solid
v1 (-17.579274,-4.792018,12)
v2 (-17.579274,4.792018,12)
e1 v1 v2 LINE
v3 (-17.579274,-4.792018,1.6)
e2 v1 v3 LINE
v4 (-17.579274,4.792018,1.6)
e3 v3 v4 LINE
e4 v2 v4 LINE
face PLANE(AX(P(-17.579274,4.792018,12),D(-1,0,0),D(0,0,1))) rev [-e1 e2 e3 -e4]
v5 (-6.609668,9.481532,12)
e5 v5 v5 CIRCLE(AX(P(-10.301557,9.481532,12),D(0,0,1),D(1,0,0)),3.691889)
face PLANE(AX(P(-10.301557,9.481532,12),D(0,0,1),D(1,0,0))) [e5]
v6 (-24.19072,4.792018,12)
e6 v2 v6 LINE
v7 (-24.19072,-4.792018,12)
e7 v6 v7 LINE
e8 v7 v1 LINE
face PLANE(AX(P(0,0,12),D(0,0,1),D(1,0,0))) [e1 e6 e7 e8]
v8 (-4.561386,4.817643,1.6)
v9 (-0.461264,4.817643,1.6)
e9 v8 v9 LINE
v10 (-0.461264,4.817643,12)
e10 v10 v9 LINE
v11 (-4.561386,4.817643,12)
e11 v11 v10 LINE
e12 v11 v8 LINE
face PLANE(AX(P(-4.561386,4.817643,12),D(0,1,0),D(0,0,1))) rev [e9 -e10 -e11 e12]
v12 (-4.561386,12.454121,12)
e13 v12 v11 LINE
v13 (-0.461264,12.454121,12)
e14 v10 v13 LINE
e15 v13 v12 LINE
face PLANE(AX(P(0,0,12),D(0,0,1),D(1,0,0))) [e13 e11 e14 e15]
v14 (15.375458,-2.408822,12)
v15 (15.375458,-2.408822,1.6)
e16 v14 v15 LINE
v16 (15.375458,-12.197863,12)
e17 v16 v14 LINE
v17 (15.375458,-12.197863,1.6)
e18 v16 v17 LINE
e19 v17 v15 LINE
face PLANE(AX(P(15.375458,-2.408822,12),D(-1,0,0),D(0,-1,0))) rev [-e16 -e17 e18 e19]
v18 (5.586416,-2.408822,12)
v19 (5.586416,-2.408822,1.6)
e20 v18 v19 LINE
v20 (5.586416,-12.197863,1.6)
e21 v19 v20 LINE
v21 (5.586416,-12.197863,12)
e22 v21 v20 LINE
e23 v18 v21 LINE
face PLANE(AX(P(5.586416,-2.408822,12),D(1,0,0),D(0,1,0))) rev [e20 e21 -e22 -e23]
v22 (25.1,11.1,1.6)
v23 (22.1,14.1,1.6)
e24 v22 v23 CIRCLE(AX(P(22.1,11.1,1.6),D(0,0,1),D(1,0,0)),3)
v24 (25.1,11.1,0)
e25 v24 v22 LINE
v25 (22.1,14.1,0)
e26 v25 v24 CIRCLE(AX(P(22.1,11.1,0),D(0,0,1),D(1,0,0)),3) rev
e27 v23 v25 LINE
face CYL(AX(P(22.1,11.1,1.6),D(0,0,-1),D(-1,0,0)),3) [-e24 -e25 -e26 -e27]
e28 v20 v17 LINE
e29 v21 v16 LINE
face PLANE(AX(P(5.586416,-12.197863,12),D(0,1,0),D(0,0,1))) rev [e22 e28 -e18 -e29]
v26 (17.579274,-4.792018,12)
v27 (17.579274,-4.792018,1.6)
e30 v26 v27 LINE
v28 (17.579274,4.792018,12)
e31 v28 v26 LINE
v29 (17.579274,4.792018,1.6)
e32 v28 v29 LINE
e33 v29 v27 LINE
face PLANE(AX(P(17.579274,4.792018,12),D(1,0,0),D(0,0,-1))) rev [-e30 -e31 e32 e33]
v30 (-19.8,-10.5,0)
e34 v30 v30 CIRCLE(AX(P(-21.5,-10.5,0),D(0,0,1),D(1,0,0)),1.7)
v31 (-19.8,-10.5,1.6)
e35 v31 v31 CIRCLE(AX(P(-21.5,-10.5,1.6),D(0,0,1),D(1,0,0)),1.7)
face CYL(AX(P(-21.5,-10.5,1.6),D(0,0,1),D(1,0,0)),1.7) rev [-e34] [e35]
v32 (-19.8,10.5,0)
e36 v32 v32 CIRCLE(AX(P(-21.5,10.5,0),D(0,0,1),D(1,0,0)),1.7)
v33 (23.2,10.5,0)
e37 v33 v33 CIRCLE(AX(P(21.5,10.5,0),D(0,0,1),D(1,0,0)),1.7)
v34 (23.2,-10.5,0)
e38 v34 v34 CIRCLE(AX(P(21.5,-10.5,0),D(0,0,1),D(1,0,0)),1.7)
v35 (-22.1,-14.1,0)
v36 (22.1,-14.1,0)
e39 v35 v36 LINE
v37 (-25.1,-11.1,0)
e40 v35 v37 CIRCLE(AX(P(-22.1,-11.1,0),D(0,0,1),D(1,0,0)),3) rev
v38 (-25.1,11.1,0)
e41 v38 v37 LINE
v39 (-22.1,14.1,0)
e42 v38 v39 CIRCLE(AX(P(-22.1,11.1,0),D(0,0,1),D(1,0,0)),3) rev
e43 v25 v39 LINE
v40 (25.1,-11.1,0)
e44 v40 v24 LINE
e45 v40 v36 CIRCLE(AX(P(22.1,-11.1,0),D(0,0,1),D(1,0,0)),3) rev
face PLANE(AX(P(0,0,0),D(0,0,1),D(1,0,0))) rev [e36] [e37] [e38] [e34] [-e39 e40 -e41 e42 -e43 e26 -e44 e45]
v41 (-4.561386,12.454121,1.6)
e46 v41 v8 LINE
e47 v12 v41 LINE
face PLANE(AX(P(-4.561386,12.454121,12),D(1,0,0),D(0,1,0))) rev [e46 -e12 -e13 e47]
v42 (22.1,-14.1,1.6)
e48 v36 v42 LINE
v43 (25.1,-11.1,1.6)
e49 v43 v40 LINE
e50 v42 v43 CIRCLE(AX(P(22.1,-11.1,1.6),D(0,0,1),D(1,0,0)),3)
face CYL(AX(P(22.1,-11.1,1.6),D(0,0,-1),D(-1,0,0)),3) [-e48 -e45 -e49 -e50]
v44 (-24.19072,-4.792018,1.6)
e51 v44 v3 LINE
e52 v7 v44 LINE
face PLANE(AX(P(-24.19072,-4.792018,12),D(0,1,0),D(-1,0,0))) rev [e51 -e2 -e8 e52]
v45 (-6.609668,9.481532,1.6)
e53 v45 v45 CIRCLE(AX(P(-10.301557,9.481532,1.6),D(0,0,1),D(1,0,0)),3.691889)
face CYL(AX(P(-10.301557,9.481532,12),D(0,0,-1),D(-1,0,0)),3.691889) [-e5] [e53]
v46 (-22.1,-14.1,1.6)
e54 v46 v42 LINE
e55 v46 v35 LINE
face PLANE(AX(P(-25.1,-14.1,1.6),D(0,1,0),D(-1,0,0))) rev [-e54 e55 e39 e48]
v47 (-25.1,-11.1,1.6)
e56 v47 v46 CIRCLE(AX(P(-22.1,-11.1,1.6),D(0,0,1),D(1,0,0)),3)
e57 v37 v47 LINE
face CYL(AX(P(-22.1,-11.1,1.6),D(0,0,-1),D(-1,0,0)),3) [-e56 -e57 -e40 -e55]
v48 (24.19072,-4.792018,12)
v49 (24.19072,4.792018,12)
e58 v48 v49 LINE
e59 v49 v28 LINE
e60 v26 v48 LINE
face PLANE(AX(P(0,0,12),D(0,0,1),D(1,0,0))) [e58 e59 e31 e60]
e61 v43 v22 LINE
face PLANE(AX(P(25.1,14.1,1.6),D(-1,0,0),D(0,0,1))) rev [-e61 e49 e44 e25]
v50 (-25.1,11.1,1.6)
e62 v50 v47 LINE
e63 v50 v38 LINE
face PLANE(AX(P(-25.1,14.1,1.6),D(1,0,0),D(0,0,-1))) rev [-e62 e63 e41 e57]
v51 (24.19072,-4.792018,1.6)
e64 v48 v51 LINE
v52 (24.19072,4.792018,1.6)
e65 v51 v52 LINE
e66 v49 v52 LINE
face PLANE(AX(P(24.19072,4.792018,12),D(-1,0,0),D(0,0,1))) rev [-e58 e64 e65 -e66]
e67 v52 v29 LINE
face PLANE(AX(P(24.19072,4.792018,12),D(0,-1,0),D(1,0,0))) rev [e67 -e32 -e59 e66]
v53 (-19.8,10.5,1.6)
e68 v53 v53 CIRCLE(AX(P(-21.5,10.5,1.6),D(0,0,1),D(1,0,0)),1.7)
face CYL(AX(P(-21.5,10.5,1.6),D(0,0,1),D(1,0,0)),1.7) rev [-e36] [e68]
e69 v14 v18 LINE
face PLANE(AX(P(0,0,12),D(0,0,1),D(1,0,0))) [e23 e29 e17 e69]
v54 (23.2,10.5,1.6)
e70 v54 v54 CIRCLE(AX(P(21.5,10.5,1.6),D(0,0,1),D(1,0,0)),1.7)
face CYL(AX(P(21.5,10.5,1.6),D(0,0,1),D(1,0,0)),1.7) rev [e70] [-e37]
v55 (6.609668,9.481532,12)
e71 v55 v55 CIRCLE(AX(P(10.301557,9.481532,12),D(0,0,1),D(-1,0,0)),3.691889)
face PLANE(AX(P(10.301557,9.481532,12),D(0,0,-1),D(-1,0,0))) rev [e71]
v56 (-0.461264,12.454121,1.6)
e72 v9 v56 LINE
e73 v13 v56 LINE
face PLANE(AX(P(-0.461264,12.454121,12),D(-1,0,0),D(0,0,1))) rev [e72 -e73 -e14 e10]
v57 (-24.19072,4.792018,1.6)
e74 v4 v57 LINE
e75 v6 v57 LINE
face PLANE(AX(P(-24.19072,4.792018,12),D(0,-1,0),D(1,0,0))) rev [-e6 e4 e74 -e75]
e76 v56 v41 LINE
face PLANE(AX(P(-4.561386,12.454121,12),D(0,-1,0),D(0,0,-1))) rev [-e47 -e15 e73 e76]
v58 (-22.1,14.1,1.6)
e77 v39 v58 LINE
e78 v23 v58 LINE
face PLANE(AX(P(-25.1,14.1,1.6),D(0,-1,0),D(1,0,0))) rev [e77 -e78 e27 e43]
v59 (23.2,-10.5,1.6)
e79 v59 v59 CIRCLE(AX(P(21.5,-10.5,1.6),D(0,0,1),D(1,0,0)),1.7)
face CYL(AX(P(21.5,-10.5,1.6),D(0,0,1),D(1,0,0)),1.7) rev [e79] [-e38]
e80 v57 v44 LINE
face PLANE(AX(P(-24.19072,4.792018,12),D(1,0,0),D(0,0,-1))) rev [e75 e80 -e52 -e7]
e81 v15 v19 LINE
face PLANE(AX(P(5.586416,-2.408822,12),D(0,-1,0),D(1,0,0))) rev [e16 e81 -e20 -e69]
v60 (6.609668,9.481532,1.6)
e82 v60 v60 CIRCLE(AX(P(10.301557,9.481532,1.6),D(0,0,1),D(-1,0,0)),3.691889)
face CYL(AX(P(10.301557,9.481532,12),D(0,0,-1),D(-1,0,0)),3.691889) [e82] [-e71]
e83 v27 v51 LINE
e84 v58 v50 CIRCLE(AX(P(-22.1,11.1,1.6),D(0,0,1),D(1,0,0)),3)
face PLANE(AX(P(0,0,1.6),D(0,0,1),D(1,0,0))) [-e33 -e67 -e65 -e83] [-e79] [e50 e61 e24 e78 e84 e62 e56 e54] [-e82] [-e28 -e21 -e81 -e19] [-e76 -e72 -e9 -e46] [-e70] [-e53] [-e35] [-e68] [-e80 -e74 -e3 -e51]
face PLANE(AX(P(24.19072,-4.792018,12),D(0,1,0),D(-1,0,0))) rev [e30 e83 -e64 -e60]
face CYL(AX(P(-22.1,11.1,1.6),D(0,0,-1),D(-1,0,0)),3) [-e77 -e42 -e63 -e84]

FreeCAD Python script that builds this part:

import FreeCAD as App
import Part
import Sketcher


def edges_at(feature, points):
    """Names of the edges that pass closest to the given points."""
    edges = feature.Shape.Edges
    near = lambda p: min(range(len(edges)), key=lambda i: edges[i].distToShape(Part.Vertex(*p))[0])
    return sorted({f"Edge{near(p) + 1}" for p in points})


def add_polygon(sketch, points):
    """Adds a closed chain of lines whose ends are joined by coincident constraints."""
    first, n = sketch.GeometryCount, len(points)
    for a, b in zip(points, points[1:] + points[:1]):
        sketch.addGeometry(Part.LineSegment(App.Vector(*a, 0), App.Vector(*b, 0)), False)
    for i in range(n):
        sketch.addConstraint(Sketcher.Constraint("Coincident", first + i, 2, first + (i + 1) % n, 1))

doc = App.newDocument("Part")
body = doc.addObject("PartDesign::Body", "Body")

sketch1 = body.newObject("Sketcher::SketchObject", "Sketch")
sketch1.AttachmentSupport = (doc.getObject("XY_Plane"), [""])
sketch1.MapMode = "FlatFace"
add_polygon(sketch1, [(-25, 14), (-25, -14), (25, -14), (25, 14)])
sketch1.addConstraint([
    Sketcher.Constraint("Vertical", 0),
    Sketcher.Constraint("Horizontal", 1),
    Sketcher.Constraint("Vertical", 2),
    Sketcher.Constraint("Horizontal", 3),
    Sketcher.Constraint("Symmetric", 0, 2, 2, 2, -1, 1),
    Sketcher.Constraint("DistanceX", 1, 1, 1, 2, 50.2),
    Sketcher.Constraint("DistanceY", 0, 2, 0, 1, 28.2),
])
pad1 = body.newObject("PartDesign::Pad", "Pad")
pad1.Profile = sketch1
pad1.Length = 1.6

sketch2 = body.newObject("Sketcher::SketchObject", "Sketch001")
sketch2.AttachmentSupport = (doc.getObject("XY_Plane"), [""])
sketch2.MapMode = "FlatFace"
sketch2.AttachmentOffset = App.Placement(App.Vector(0, 0, 1.6), App.Rotation())
sketch2.addGeometry([
    Part.Circle(App.Vector(-21.5, 10.5, 0), App.Vector(0, 0, 1), 1.7),
    Part.Circle(App.Vector(21.5, 10.5, 0), App.Vector(0, 0, 1), 1.7),
    Part.Circle(App.Vector(21.5, -10.5, 0), App.Vector(0, 0, 1), 1.7),
    Part.Circle(App.Vector(-21.5, -10.5, 0), App.Vector(0, 0, 1), 1.7),
], False)
sketch2.addConstraint([
    Sketcher.Constraint("Equal", 0, 1),
    Sketcher.Constraint("Equal", 1, 2),
    Sketcher.Constraint("Equal", 2, 3),
    Sketcher.Constraint("Symmetric", 0, 3, 2, 3, -1, 1),
    Sketcher.Constraint("Symmetric", 1, 3, 3, 3, -1, 1),
    Sketcher.Constraint("Symmetric", 0, 3, 1, 3, -2),
    Sketcher.Constraint("Diameter", 0, 3.4),
    Sketcher.Constraint("DistanceX", 0, 3, 1, 3, 43.0),
    Sketcher.Constraint("DistanceY", 2, 3, 1, 3, 21.0),
])
doc.recompute()
hole = body.newObject("PartDesign::Hole", "Hole")
hole.Profile = sketch2
hole.ThreadType = "None"
hole.Diameter = 3.4
hole.DepthType = "ThroughAll"
doc.recompute()

fillet = body.newObject("PartDesign::Fillet", "Fillet")
fillet.Base = (hole, edges_at(hole, [
    (-25.1, 14.1, 0.8),
    (25.1, 14.1, 0.8),
    (25.1, -14.1, 0.8),
    (-25.1, -14.1, 0.8),
]))
fillet.Radius = 3

sketch3 = body.newObject("Sketcher::SketchObject", "Sketch002")
sketch3.AttachmentSupport = (doc.getObject("XY_Plane"), [""])
sketch3.MapMode = "FlatFace"
sketch3.AttachmentOffset = App.Placement(App.Vector(0, 0, 1.6), App.Rotation())
sketch3.addGeometry(Part.Circle(App.Vector(-10.3, 9.5, 0), App.Vector(0, 0, 1), 3.7), False)
sketch3.addGeometry(Part.Circle(App.Vector(10.3, 9.5, 0), App.Vector(0, 0, 1), 3.7), False)
add_polygon(sketch3, [(-24.2, 4.8), (-24.2, -4.8), (-17.6, -4.8), (-17.6, 4.8)])
add_polygon(sketch3, [(17.6, 4.8), (17.6, -4.8), (24.2, -4.8), (24.2, 4.8)])
add_polygon(sketch3, [(-4.6, 12.5), (-4.6, 4.8), (-0.5, 4.8), (-0.5, 12.5)])
add_polygon(sketch3, [(5.6, -2.4), (5.6, -12.2), (15.4, -12.2), (15.4, -2.4)])
sketch3.addConstraint([
    Sketcher.Constraint("Vertical", 2),
    Sketcher.Constraint("Horizontal", 3),
    Sketcher.Constraint("Vertical", 4),
    Sketcher.Constraint("Horizontal", 5),
    Sketcher.Constraint("Vertical", 6),
    Sketcher.Constraint("Horizontal", 7),
    Sketcher.Constraint("Vertical", 8),
    Sketcher.Constraint("Horizontal", 9),
    Sketcher.Constraint("Vertical", 10),
    Sketcher.Constraint("Horizontal", 11),
    Sketcher.Constraint("Vertical", 12),
    Sketcher.Constraint("Horizontal", 13),
    Sketcher.Constraint("Vertical", 14),
    Sketcher.Constraint("Horizontal", 15),
    Sketcher.Constraint("Vertical", 16),
    Sketcher.Constraint("Horizontal", 17),
    Sketcher.Constraint("Equal", 0, 1),
    Sketcher.Constraint("Symmetric", 4, 2, 6, 2, -1, 1),
    Sketcher.Constraint("Symmetric", 2, 2, 8, 2, -1, 1),
    Sketcher.Constraint("Symmetric", 0, 3, 1, 3, -2),
    Sketcher.Constraint("Horizontal", 3, 2, 6, 2),
    Sketcher.Constraint("Equal", 17, 14),
    Sketcher.Constraint("Diameter", 0, 7.383778),
    Sketcher.Constraint("DistanceX", 15, 1, 15, 2, 9.789042),
    Sketcher.Constraint("DistanceX", 3, 1, 3, 2, 6.611447),
    Sketcher.Constraint("DistanceX", 11, 1, 11, 2, 4.100122),
    Sketcher.Constraint("DistanceY", 2, 2, 2, 1, 9.584035),
    Sketcher.Constraint("DistanceY", 10, 2, 10, 1, 7.636477),
    Sketcher.Constraint("DistanceX", 2, 2, -1, 1, 24.19072),
    Sketcher.Constraint("DistanceY", -1, 1, 12, 2, 12.454121),
    Sketcher.Constraint("DistanceY", 16, 2, -1, 1, 2.408822),
    Sketcher.Constraint("DistanceY", 2, 2, 0, 3, 14.27355),
    Sketcher.Constraint("DistanceX", 3, 2, 1, 3, 27.88083),
    Sketcher.Constraint("DistanceX", 0, 3, 10, 2, 5.740171),
    Sketcher.Constraint("DistanceX", 11, 2, 14, 2, 6.04768),
])
pad2 = body.newObject("PartDesign::Pad", "Pad001")
pad2.Profile = sketch3
pad2.Length = 10.4

doc.recompute()
